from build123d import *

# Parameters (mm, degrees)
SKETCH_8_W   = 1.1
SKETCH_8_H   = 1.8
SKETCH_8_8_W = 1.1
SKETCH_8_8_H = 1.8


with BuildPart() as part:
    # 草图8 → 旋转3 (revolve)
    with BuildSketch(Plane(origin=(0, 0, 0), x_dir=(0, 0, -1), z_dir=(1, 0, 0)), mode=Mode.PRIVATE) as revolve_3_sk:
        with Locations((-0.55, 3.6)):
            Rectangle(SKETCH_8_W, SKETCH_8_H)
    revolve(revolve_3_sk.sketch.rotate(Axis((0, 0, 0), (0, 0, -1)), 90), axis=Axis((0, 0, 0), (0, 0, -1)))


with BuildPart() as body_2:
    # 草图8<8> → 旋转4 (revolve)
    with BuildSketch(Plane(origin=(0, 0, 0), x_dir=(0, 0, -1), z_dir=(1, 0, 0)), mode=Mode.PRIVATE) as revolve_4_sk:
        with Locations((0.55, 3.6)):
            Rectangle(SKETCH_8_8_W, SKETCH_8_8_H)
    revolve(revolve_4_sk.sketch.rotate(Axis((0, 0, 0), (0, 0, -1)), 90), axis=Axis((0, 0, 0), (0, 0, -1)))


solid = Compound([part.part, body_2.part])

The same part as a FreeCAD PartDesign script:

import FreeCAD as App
import Part
import Sketcher
from FreeCAD import Vector
Q = App.Units.Quantity

doc = App.newDocument("Part")
body = doc.addObject("PartDesign::Body", "Body")

# Sketch on YZ plane
sketch1 = body.newObject("Sketcher::SketchObject", "Sketch")
sketch1.AttachmentSupport = (doc.getObject("YZ_Plane"), [""])
sketch1.MapMode = "FlatFace"
sketch1.addGeometry([
    Part.LineSegment(Vector(4.5, 1.1, 0), Vector(2.7, 1.1, 0)),
    Part.LineSegment(Vector(2.7, 1.1, 0), Vector(2.7, 0, 0)),
    Part.LineSegment(Vector(2.7, 0, 0), Vector(4.5, 0, 0)),
    Part.LineSegment(Vector(4.5, 0, 0), Vector(4.5, 1.1, 0)),
], False)
sketch1.addConstraint([
    Sketcher.Constraint("Coincident", 0, 2, 1, 1),
    Sketcher.Constraint("Coincident", 1, 2, 2, 1),
    Sketcher.Constraint("Coincident", 2, 2, 3, 1),
    Sketcher.Constraint("Coincident", 3, 2, 0, 1),
    Sketcher.Constraint("Horizontal", 0),
    Sketcher.Constraint("Vertical", 1),
    Sketcher.Constraint("Horizontal", 2),
    Sketcher.Constraint("Vertical", 3),
    Sketcher.Constraint("PointOnObject", 1, 2, -1),
    Sketcher.Constraint("DistanceX", 0, 2, 0, 1, Q("1.8 mm")),
    Sketcher.Constraint("DistanceY", 1, 2, 1, 1, Q("1.1 mm")),
    Sketcher.Constraint("DistanceX", -1, 1, 0, 2, Q("2.7 mm")),
])
revolution = body.newObject("PartDesign::Revolution", "Revolution")
revolution.Profile = sketch1
revolution.ReferenceAxis = (sketch1, ["V_Axis"])
revolution.Angle = 360
body2 = doc.addObject("PartDesign::Body", "Body001")

# Sketch on YZ plane
sketch2 = body2.newObject("Sketcher::SketchObject", "Sketch001")
sketch2.AttachmentSupport = (doc.getObject("YZ_Plane001"), [""])
sketch2.MapMode = "FlatFace"
sketch2.addGeometry([
    Part.LineSegment(Vector(4.5, 0, 0), Vector(2.7, 0, 0)),
    Part.LineSegment(Vector(2.7, 0, 0), Vector(2.7, -1.1, 0)),
    Part.LineSegment(Vector(2.7, -1.1, 0), Vector(4.5, -1.1, 0)),
    Part.LineSegment(Vector(4.5, -1.1, 0), Vector(4.5, 0, 0)),
], False)
sketch2.addConstraint([
    Sketcher.Constraint("Coincident", 0, 2, 1, 1),
    Sketcher.Constraint("Coincident", 1, 2, 2, 1),
    Sketcher.Constraint("Coincident", 2, 2, 3, 1),
    Sketcher.Constraint("Coincident", 3, 2, 0, 1),
    Sketcher.Constraint("Horizontal", 0),
    Sketcher.Constraint("Vertical", 1),
    Sketcher.Constraint("Horizontal", 2),
    Sketcher.Constraint("Vertical", 3),
    Sketcher.Constraint("PointOnObject", 0, 2, -1),
    Sketcher.Constraint("DistanceX", 0, 2, 0, 1, Q("1.8 mm")),
    Sketcher.Constraint("DistanceY", 1, 2, 1, 1, Q("1.1 mm")),
    Sketcher.Constraint("DistanceX", -1, 1, 0, 2, Q("2.7 mm")),
])
revolution2 = body2.newObject("PartDesign::Revolution", "Revolution001")
revolution2.Profile = sketch2
revolution2.ReferenceAxis = (sketch2, ["V_Axis"])
revolution2.Angle = 360

doc.recompute()
